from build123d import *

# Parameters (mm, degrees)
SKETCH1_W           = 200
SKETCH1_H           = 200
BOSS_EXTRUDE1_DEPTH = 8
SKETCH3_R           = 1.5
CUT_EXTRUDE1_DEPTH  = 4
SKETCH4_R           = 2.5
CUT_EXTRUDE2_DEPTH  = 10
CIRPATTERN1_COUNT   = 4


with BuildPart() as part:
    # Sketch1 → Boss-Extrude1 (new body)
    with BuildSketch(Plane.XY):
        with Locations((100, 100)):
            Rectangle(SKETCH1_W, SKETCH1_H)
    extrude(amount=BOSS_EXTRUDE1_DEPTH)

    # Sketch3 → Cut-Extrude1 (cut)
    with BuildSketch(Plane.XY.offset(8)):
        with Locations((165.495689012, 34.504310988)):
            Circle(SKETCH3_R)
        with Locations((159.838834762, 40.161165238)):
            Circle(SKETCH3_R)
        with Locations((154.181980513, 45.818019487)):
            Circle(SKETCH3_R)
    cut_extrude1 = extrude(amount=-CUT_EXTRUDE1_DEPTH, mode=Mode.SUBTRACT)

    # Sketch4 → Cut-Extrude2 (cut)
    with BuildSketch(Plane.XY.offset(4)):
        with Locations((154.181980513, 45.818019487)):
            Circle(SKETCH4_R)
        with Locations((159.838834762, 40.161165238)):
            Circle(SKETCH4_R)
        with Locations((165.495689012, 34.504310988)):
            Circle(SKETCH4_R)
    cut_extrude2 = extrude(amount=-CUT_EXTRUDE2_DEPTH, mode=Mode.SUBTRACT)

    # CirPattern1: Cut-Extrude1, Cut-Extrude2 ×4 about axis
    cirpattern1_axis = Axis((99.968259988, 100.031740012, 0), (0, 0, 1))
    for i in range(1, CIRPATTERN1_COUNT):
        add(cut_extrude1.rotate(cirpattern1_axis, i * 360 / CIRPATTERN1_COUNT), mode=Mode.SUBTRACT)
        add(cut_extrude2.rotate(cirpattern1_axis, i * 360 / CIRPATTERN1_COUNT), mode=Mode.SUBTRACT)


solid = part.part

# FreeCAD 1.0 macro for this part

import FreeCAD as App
import Part
import Sketcher
from FreeCAD import Vector
Q = App.Units.Quantity

doc = App.newDocument("Part")
body = doc.addObject("PartDesign::Body", "Body")

sketch1 = body.newObject("Sketcher::SketchObject", "Sketch")
sketch1.AttachmentSupport = (doc.getObject("XY_Plane"), [""])
sketch1.MapMode = "FlatFace"
sketch1.addGeometry([
    Part.LineSegment(Vector(0, 200, 0), Vector(0, 0, 0)),
    Part.LineSegment(Vector(0, 0, 0), Vector(200, 0, 0)),
    Part.LineSegment(Vector(200, 0, 0), Vector(200, 200, 0)),
    Part.LineSegment(Vector(200, 200, 0), Vector(0, 200, 0)),
], False)
sketch1.addConstraint([
    Sketcher.Constraint("Coincident", 0, 2, 1, 1),
    Sketcher.Constraint("Coincident", 1, 2, 2, 1),
    Sketcher.Constraint("Coincident", 2, 2, 3, 1),
    Sketcher.Constraint("Coincident", 3, 2, 0, 1),
    Sketcher.Constraint("Vertical", 0),
    Sketcher.Constraint("Horizontal", 1),
    Sketcher.Constraint("Vertical", 2),
    Sketcher.Constraint("Horizontal", 3),
    Sketcher.Constraint("Coincident", 0, 2, -1, 1),
    Sketcher.Constraint("Equal", 3, 0),
    Sketcher.Constraint("DistanceX", 1, 1, 1, 2, Q("200 mm")),
])
pad1 = body.newObject("PartDesign::Pad", "Pad")
pad1.Profile = sketch1
pad1.Length = 8

sketch2 = body.newObject("Sketcher::SketchObject", "Sketch001")
sketch2.AttachmentSupport = (doc.getObject("XY_Plane"), [""])
sketch2.MapMode = "FlatFace"
sketch2.AttachmentOffset = App.Placement(Vector(0, 0, 8), App.Rotation())
sketch2.addGeometry([
    Part.Circle(Vector(165.5, 34.5, 0), Vector(0, 0, 1), 1.5),
    Part.Circle(Vector(159.8, 40.2, 0), Vector(0, 0, 1), 1.5),
    Part.Circle(Vector(154.2, 45.8, 0), Vector(0, 0, 1), 1.5),
], False)
sketch2.addConstraint([
    Sketcher.Constraint("Equal", 0, 1),
    Sketcher.Constraint("Equal", 1, 2),
    Sketcher.Constraint("Diameter", 0, Q("3 mm")),
    Sketcher.Constraint("DistanceX", -1, 1, 0, 3, Q("165.495689 mm")),
    Sketcher.Constraint("DistanceY", -1, 1, 0, 3, Q("34.504311 mm")),
    Sketcher.Constraint("DistanceX", -1, 1, 2, 3, Q("154.181981 mm")),
    Sketcher.Constraint("DistanceY", -1, 1, 2, 3, Q("45.818019 mm")),
    Sketcher.Constraint("DistanceX", -1, 1, 1, 3, Q("159.838835 mm")),
    Sketcher.Constraint("DistanceY", -1, 1, 1, 3, Q("40.161165 mm")),
])
pocket1 = body.newObject("PartDesign::Pocket", "Pocket")
pocket1.Profile = sketch2
pocket1.Length = 4

sketch3 = body.newObject("Sketcher::SketchObject", "Sketch002")
sketch3.AttachmentSupport = (doc.getObject("XY_Plane"), [""])
sketch3.MapMode = "FlatFace"
sketch3.AttachmentOffset = App.Placement(Vector(0, 0, 4), App.Rotation())
sketch3.addGeometry([
    Part.Circle(Vector(154.2, 45.8, 0), Vector(0, 0, 1), 2.5),
    Part.Circle(Vector(159.8, 40.2, 0), Vector(0, 0, 1), 2.5),
    Part.Circle(Vector(165.5, 34.5, 0), Vector(0, 0, 1), 2.5),
], False)
sketch3.addConstraint([
    Sketcher.Constraint("Equal", 0, 1),
    Sketcher.Constraint("Equal", 1, 2),
    Sketcher.Constraint("Diameter", 0, Q("5 mm")),
    Sketcher.Constraint("DistanceX", -1, 1, 0, 3, Q("154.181981 mm")),
    Sketcher.Constraint("DistanceY", -1, 1, 0, 3, Q("45.818019 mm")),
    Sketcher.Constraint("DistanceX", -1, 1, 2, 3, Q("165.495689 mm")),
    Sketcher.Constraint("DistanceY", -1, 1, 2, 3, Q("34.504311 mm")),
    Sketcher.Constraint("DistanceX", -1, 1, 1, 3, Q("159.838835 mm")),
    Sketcher.Constraint("DistanceY", -1, 1, 1, 3, Q("40.161165 mm")),
])
pocket2 = body.newObject("PartDesign::Pocket", "Pocket001")
pocket2.Profile = sketch3
pocket2.Length = 10
doc.recompute()

datumline = body.newObject("PartDesign::Line", "DatumLine")
datumline.Placement = App.Placement(Vector(99.96826, 100.03174, 0), App.Rotation(Vector(0, 0, 1), Vector(0, 0, 1)))
polarpattern = body.newObject("PartDesign::PolarPattern", "PolarPattern")
polarpattern.Originals = [pocket1, pocket2]
polarpattern.Axis = (datumline, [""])
polarpattern.Angle = 360
polarpattern.Occurrences = 4
body.Tip = polarpattern

doc.recompute()
